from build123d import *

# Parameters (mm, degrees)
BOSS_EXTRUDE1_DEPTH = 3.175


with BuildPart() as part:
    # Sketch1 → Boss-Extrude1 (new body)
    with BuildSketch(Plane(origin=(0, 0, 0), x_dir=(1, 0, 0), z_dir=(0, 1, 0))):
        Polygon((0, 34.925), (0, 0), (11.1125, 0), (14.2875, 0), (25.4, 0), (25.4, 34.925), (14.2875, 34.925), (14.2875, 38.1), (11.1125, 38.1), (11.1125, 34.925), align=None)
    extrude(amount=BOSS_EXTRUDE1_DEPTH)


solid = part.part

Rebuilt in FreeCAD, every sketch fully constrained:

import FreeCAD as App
import Part
import Sketcher
Q = App.Units.Quantity


def add_polygon(sketch, points):
    """Adds a closed chain of lines whose ends are joined by coincident constraints."""
    first, n = sketch.GeometryCount, len(points)
    for a, b in zip(points, points[1:] + points[:1]):
        sketch.addGeometry(Part.LineSegment(App.Vector(*a, 0), App.Vector(*b, 0)), False)
    for i in range(n):
        sketch.addConstraint(Sketcher.Constraint("Coincident", first + i, 2, first + (i + 1) % n, 1))

doc = App.newDocument("Part")
body = doc.addObject("PartDesign::Body", "Body")

sketch1 = body.newObject("Sketcher::SketchObject", "Sketch")
sketch1.AttachmentSupport = (doc.getObject("XZ_Plane"), [""])
sketch1.MapMode = "FlatFace"
add_polygon(sketch1, [(0, -34.925), (0, 0), (25.4, 0), (25.4, -34.925), (14.2875, -34.925), (14.2875, -38.1), (11.1125, -38.1), (11.1125, -34.925)])
sketch1.addConstraint([
    Sketcher.Constraint("Vertical", 0),
    Sketcher.Constraint("Horizontal", 1),
    Sketcher.Constraint("Vertical", 2),
    Sketcher.Constraint("Horizontal", 3),
    Sketcher.Constraint("Vertical", 4),
    Sketcher.Constraint("Horizontal", 5),
    Sketcher.Constraint("Vertical", 6),
    Sketcher.Constraint("Horizontal", 7),
    Sketcher.Constraint("Coincident", 0, 2, -1, 1),
    Sketcher.Constraint("Horizontal", 3, 2, 6, 2),
    Sketcher.Constraint("Equal", 3, 7),
    Sketcher.Constraint("Equal", 5, 4),
    Sketcher.Constraint("DistanceX", 1, 1, 1, 2, Q("1 in")),
    Sketcher.Constraint("DistanceY", 4, 2, -1, 1, Q("1.5 in")),
    Sketcher.Constraint("DistanceX", 3, 2, 3, 1, Q("0.4375 in")),
])
pad1 = body.newObject("PartDesign::Pad", "Pad")
pad1.Profile = sketch1
pad1.Length = Q("0.125 in")
pad1.Reversed = True

doc.recompute()
